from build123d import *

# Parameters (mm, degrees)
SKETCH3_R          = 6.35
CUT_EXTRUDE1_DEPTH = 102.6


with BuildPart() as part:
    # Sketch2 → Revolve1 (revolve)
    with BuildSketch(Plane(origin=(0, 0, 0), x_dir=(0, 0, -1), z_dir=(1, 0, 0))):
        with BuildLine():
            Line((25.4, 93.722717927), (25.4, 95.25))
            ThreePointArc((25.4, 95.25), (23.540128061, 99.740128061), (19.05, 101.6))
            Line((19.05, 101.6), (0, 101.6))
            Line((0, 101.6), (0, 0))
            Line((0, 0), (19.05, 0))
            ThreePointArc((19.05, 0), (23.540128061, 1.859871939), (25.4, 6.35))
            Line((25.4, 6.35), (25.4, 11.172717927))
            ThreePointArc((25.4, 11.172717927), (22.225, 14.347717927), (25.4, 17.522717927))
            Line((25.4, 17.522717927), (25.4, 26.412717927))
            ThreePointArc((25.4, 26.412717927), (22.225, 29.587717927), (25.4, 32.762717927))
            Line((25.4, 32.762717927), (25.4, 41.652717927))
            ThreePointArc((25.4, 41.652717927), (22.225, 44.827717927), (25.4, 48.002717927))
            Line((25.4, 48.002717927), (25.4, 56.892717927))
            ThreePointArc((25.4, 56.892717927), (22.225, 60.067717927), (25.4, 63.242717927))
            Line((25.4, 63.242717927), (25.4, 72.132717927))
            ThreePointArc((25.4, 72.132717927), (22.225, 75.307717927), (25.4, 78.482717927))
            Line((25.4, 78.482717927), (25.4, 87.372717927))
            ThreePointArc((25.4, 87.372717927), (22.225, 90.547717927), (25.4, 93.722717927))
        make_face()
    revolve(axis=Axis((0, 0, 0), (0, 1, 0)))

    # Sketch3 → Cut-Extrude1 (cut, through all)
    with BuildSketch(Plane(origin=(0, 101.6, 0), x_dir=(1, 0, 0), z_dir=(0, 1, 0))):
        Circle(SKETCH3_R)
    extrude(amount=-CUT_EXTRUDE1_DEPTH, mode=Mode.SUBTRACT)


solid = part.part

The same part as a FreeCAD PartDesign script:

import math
import FreeCAD as App
import Part
import Sketcher

V = App.Vector
Q = App.Units.Quantity

doc = App.newDocument("Part")
body = doc.addObject("PartDesign::Body", "Body")

# Sketch on YZ plane
sketch1 = doc.addObject("Sketcher::SketchObject", "Sketch")
body.addObject(sketch1)
sketch1.AttachmentSupport = (doc.YZ_Plane, [""])
sketch1.MapMode = "FlatFace"
sketch1.addGeometry([
    Part.LineSegment(V(93.7, -25.4, 0), V(95.2, -25.4, 0)),  # 0
    Part.ArcOfCircle(Part.Circle(V(95.3, -19.1, 0), V(0, 0, 1), 6.3), math.radians(-90), math.radians(0)),  # 1
    Part.LineSegment(V(101.6, -19.1, 0), V(101.6, 0, 0)),  # 2
    Part.LineSegment(V(101.6, 0, 0), V(0, 0, 0)),  # 3
    Part.LineSegment(V(0, 0, 0), V(0, -19.1, 0)),  # 4
    Part.ArcOfCircle(Part.Circle(V(6.3, -19.1, 0), V(0, 0, 1), 6.3), math.radians(180), math.radians(270)),  # 5
    Part.LineSegment(V(6.3, -25.4, 0), V(11.2, -25.4, 0)),  # 6
    Part.ArcOfCircle(Part.Circle(V(14.3, -25.4, 0), V(0, 0, 1), 3.2), math.radians(0), math.radians(180)),  # 7
    Part.LineSegment(V(17.5, -25.4, 0), V(26.4, -25.4, 0)),  # 8
    Part.ArcOfCircle(Part.Circle(V(29.6, -25.4, 0), V(0, 0, 1), 3.2), math.radians(0), math.radians(180)),  # 9
    Part.LineSegment(V(32.8, -25.4, 0), V(41.7, -25.4, 0)),  # 10
    Part.ArcOfCircle(Part.Circle(V(44.8, -25.4, 0), V(0, 0, 1), 3.2), math.radians(0), math.radians(180)),  # 11
    Part.LineSegment(V(48, -25.4, 0), V(56.9, -25.4, 0)),  # 12
    Part.ArcOfCircle(Part.Circle(V(60.1, -25.4, 0), V(0, 0, 1), 3.2), math.radians(0), math.radians(180)),  # 13
    Part.LineSegment(V(63.2, -25.4, 0), V(72.1, -25.4, 0)),  # 14
    Part.ArcOfCircle(Part.Circle(V(75.3, -25.4, 0), V(0, 0, 1), 3.2), math.radians(0), math.radians(180)),  # 15
    Part.LineSegment(V(78.5, -25.4, 0), V(87.4, -25.4, 0)),  # 16
    Part.ArcOfCircle(Part.Circle(V(90.5, -25.4, 0), V(0, 0, 1), 3.2), math.radians(0), math.radians(180)),  # 17
], False)
sketch1.addConstraint([
    Sketcher.Constraint("Tangent", 0, 2, 1, 1),
    Sketcher.Constraint("Tangent", 1, 2, 2, 1),
    Sketcher.Constraint("Coincident", 2, 2, 3, 1),
    Sketcher.Constraint("Coincident", 3, 2, 4, 1),
    Sketcher.Constraint("Tangent", 4, 2, 5, 1),
    Sketcher.Constraint("Tangent", 5, 2, 6, 1),
    Sketcher.Constraint("Coincident", 6, 2, 7, 2),
    Sketcher.Constraint("Coincident", 7, 1, 8, 1),
    Sketcher.Constraint("Coincident", 8, 2, 9, 2),
    Sketcher.Constraint("Coincident", 9, 1, 10, 1),
    Sketcher.Constraint("Coincident", 10, 2, 11, 2),
    Sketcher.Constraint("Coincident", 11, 1, 12, 1),
    Sketcher.Constraint("Coincident", 12, 2, 13, 2),
    Sketcher.Constraint("Coincident", 13, 1, 14, 1),
    Sketcher.Constraint("Coincident", 14, 2, 15, 2),
    Sketcher.Constraint("Coincident", 15, 1, 16, 1),
    Sketcher.Constraint("Coincident", 16, 2, 17, 2),
    Sketcher.Constraint("Coincident", 17, 1, 0, 1),
    Sketcher.Constraint("Horizontal", 0),
    Sketcher.Constraint("Vertical", 2),
    Sketcher.Constraint("Horizontal", 3),
    Sketcher.Constraint("Vertical", 4),
    Sketcher.Constraint("Horizontal", 6),
    Sketcher.Constraint("Horizontal", 8),
    Sketcher.Constraint("Horizontal", 10),
    Sketcher.Constraint("Horizontal", 12),
    Sketcher.Constraint("Horizontal", 14),
    Sketcher.Constraint("Horizontal", 16),
    Sketcher.Constraint("Coincident", 3, 2, -1, 1),
    Sketcher.Constraint("Equal", 1, 5),
    Sketcher.Constraint("Equal", 7, 9),
    Sketcher.Constraint("Equal", 9, 11),
    Sketcher.Constraint("Equal", 11, 13),
    Sketcher.Constraint("Equal", 13, 15),
    Sketcher.Constraint("Equal", 15, 17),
    Sketcher.Constraint("Horizontal", 1, 3, 5, 3),
    Sketcher.Constraint("Horizontal", 7, 3, 9, 3),
    Sketcher.Constraint("Horizontal", 9, 3, 11, 3),
    Sketcher.Constraint("Horizontal", 11, 3, 13, 3),
    Sketcher.Constraint("Horizontal", 13, 3, 15, 3),
    Sketcher.Constraint("Horizontal", 15, 3, 17, 3),
    Sketcher.Constraint("Horizontal", 17, 3, 0, 2),
    Sketcher.Constraint("Horizontal", 6, 2, 7, 1),
    Sketcher.Constraint("Horizontal", 8, 2, 9, 1),
    Sketcher.Constraint("Horizontal", 10, 2, 11, 1),
    Sketcher.Constraint("Horizontal", 12, 2, 13, 1),
    Sketcher.Constraint("Horizontal", 14, 2, 15, 1),
    Sketcher.Constraint("Equal", 8, 10),
    Sketcher.Constraint("Equal", 10, 12),
    Sketcher.Constraint("Equal", 12, 14),
    Sketcher.Constraint("Equal", 14, 16),
    Sketcher.Constraint("DistanceX", 3, 2, 3, 1, Q("4 in")),
    Sketcher.Constraint("Radius", 1, Q("0.25 in")),
    Sketcher.Constraint("DistanceY", 7, 3, -1, 1, Q("1 in")),
    Sketcher.Constraint("Radius", 7, Q("0.125 in")),
    Sketcher.Constraint("DistanceX", 8, 1, 8, 2, Q("0.35 in")),
    Sketcher.Constraint("DistanceX", 0, 1, 0, 2, Q("1.527282 mm")),
])
revolution = doc.addObject("PartDesign::Revolution", "Revolution")
body.addObject(revolution)
revolution.Profile = sketch1
revolution.ReferenceAxis = (sketch1, ["H_Axis"])
revolution.Angle = 360

# Sketch on XZ plane
sketch2 = doc.addObject("Sketcher::SketchObject", "Sketch001")
body.addObject(sketch2)
sketch2.AttachmentSupport = (doc.XZ_Plane, [""])
sketch2.MapMode = "FlatFace"
sketch2.AttachmentOffset = App.Placement(V(0, 0, -4 * 25.4), App.Rotation())
sketch2.addGeometry(Part.Circle(V(0, 0, 0), V(0, 0, 1), 6), False)
sketch2.addConstraint([
    Sketcher.Constraint("Coincident", 0, 3, -1, 1),
    Sketcher.Constraint("Diameter", 0, Q("0.5 in")),
])
pocket1 = doc.addObject("PartDesign::Pocket", "Pocket")
body.addObject(pocket1)
pocket1.Profile = sketch2
pocket1.Type = "ThroughAll"
pocket1.Reversed = True

doc.recompute()
